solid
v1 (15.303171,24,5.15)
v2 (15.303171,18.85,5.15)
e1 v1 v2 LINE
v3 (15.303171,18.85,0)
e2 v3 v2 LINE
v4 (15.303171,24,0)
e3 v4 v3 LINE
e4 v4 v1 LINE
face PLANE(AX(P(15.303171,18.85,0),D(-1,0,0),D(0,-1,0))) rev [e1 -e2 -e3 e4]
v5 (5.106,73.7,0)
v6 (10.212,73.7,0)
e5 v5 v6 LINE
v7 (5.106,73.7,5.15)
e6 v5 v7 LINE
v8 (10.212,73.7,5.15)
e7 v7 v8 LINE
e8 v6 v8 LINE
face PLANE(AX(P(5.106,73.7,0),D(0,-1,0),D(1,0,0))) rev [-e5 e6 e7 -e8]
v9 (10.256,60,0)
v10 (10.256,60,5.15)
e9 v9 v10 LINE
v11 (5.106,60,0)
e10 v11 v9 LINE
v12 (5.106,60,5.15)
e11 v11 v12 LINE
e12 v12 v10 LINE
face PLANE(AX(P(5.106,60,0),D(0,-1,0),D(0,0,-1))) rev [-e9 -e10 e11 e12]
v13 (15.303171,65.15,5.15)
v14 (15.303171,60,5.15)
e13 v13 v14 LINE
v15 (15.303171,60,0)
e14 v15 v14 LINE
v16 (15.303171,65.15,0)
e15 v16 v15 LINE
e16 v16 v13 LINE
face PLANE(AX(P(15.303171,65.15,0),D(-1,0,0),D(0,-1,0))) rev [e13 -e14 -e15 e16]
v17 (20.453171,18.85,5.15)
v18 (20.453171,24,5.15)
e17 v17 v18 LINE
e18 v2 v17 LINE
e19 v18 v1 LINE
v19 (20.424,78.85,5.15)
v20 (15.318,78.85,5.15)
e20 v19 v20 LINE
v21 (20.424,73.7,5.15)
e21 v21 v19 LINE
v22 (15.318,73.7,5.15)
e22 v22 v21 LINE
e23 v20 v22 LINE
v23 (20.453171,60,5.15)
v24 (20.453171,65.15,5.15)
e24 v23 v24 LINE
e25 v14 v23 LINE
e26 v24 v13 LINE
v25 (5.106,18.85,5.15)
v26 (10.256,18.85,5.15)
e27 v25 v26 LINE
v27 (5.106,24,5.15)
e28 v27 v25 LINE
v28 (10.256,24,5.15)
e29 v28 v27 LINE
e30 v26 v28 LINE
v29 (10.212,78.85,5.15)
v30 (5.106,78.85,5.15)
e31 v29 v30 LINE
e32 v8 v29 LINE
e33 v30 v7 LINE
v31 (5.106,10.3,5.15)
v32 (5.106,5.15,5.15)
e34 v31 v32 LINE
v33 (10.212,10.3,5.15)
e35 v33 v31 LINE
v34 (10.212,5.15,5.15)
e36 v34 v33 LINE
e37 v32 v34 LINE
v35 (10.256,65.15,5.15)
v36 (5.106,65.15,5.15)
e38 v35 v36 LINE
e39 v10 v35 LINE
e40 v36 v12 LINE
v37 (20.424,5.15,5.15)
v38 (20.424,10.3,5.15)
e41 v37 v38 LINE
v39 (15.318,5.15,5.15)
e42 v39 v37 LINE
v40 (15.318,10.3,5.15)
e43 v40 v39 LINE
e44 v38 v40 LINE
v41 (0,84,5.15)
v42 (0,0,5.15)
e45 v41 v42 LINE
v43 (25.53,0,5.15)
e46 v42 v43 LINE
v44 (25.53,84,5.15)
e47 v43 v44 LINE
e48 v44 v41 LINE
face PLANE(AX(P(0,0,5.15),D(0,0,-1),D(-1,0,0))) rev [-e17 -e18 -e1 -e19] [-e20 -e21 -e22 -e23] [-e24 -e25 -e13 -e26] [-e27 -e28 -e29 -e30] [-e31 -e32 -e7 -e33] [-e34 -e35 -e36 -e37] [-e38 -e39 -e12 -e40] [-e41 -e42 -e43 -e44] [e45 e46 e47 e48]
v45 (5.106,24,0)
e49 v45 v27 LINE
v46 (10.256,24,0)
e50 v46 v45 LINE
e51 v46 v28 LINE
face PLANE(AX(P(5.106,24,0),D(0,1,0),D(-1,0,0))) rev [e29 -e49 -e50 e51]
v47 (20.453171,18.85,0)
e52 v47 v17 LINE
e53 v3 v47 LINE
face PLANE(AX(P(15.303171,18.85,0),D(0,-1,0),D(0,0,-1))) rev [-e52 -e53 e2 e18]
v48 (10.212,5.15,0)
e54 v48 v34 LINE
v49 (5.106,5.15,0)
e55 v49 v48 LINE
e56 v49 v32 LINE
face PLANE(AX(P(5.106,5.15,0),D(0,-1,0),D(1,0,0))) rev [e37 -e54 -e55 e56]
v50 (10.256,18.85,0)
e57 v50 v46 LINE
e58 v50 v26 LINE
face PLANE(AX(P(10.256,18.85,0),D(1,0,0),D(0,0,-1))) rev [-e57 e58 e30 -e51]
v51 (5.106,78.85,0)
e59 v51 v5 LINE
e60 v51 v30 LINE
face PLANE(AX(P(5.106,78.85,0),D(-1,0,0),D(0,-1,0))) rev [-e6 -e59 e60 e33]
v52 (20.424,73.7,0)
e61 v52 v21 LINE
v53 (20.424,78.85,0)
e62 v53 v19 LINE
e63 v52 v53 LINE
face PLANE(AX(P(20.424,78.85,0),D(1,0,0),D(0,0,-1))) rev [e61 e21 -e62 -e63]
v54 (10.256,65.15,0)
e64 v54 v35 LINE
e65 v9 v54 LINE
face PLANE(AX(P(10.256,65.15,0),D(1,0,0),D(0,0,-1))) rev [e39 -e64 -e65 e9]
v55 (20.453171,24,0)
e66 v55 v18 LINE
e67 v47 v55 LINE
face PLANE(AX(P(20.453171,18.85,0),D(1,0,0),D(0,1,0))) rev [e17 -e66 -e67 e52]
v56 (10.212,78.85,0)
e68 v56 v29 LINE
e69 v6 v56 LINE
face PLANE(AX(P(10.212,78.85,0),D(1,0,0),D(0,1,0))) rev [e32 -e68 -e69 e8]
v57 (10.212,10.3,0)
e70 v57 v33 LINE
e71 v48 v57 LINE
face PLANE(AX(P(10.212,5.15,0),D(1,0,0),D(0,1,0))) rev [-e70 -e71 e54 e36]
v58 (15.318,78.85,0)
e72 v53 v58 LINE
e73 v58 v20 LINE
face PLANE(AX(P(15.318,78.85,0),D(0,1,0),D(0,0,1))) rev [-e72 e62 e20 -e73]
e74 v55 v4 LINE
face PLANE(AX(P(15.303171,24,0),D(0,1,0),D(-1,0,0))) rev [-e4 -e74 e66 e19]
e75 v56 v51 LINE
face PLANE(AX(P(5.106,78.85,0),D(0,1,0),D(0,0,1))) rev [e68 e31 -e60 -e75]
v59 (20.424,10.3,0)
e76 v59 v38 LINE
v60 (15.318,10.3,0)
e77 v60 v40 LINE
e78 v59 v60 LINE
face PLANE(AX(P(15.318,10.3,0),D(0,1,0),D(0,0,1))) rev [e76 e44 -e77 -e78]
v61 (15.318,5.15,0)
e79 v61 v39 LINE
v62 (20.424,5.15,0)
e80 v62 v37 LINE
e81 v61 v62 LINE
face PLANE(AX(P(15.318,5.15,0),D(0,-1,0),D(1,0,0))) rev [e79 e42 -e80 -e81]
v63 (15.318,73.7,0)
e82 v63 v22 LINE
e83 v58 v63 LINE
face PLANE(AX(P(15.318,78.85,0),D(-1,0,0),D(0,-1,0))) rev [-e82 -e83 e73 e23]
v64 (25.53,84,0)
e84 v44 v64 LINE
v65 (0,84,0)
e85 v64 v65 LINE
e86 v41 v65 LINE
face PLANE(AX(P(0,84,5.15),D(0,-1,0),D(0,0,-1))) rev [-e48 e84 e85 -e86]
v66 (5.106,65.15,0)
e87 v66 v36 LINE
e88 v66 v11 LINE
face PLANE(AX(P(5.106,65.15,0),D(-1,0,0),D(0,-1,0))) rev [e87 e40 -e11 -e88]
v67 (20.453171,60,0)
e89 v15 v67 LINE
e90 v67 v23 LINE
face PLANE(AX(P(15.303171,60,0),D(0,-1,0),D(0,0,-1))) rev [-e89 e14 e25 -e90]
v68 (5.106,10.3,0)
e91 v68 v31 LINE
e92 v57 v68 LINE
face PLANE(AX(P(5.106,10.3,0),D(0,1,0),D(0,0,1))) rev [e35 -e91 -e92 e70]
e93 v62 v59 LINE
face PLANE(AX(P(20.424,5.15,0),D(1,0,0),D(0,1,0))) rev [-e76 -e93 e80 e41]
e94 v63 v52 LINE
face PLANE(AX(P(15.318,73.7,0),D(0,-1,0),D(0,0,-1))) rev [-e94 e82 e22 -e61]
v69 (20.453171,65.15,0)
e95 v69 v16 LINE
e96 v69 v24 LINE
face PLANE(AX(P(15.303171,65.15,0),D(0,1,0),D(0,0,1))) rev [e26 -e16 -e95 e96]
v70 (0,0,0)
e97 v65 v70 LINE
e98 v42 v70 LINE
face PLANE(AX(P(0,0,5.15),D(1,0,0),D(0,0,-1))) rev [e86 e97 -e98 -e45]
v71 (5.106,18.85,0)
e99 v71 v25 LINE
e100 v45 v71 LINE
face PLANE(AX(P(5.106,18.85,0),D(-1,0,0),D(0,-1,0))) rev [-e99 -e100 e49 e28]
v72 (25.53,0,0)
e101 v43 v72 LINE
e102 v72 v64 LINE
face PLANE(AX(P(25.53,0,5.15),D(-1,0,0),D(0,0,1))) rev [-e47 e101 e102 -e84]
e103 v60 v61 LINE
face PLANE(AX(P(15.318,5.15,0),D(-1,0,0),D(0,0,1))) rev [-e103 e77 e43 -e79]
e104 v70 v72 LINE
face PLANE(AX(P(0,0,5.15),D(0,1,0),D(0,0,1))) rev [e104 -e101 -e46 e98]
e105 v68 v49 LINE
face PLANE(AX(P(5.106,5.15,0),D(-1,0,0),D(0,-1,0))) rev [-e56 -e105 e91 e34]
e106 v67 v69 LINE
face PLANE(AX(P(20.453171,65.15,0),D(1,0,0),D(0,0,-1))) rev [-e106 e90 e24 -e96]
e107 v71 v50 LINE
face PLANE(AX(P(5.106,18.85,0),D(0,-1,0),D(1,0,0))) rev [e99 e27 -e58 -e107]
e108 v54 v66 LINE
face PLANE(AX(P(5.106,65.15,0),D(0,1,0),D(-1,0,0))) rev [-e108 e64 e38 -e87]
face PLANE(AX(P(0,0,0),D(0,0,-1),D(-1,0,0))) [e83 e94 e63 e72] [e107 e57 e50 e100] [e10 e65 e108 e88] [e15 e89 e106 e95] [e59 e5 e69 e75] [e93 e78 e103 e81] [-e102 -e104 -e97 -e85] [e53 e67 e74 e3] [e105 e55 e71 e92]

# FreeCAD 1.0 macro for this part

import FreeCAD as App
import Part
import Sketcher

V = App.Vector
Q = App.Units.Quantity

doc = App.newDocument("Part")
params = doc.addObject("Spreadsheet::Sheet", "Params")
for row, (alias, value) in enumerate([
    ("sketch1_height", "84 mm"),
    ("sketch1_width", "25.53 mm"),
    ("pad1_length", "5.15 mm"),
    ("sketch2_width", "5.15 mm"),
], start=1):
    params.set(f"A{row}", alias)
    params.set(f"B{row}", "=" + value)
    params.setAlias(f"B{row}", alias)

body = doc.addObject("PartDesign::Body", "Body")

# Sketch on XY plane
sketch1 = body.newObject("Sketcher::SketchObject", "Sketch")
sketch1.AttachmentSupport = (doc.getObject("XY_Plane"), [""])
sketch1.MapMode = "FlatFace"
sketch1.addGeometry(Part.LineSegment(V(0, 84, 0), V(0, 0, 0)), False)
sketch1.addGeometry(Part.LineSegment(V(0, 0, 0), V(26, 0, 0)), False)
sketch1.addGeometry(Part.LineSegment(V(26, 0, 0), V(26, 84, 0)), False)
sketch1.addGeometry(Part.LineSegment(V(26, 84, 0), V(0, 84, 0)), False)
sketch1.addConstraint(Sketcher.Constraint("Coincident", 0, 2, 1, 1))
sketch1.addConstraint(Sketcher.Constraint("Coincident", 1, 2, 2, 1))
sketch1.addConstraint(Sketcher.Constraint("Coincident", 2, 2, 3, 1))
sketch1.addConstraint(Sketcher.Constraint("Coincident", 3, 2, 0, 1))
sketch1.addConstraint(Sketcher.Constraint("Vertical", 0))
sketch1.addConstraint(Sketcher.Constraint("Horizontal", 1))
sketch1.addConstraint(Sketcher.Constraint("Vertical", 2))
sketch1.addConstraint(Sketcher.Constraint("Horizontal", 3))
sketch1.addConstraint(Sketcher.Constraint("Coincident", 0, 2, -1, 1))
sketch1.addConstraint(Sketcher.Constraint("DistanceY", 0, 2, 0, 1, Q("84 mm")))
sketch1.addConstraint(Sketcher.Constraint("DistanceX", 1, 1, 1, 2, Q("25.53 mm")))
sketch1.setExpression("Constraints[9]", "Params.sketch1_height")
sketch1.setExpression("Constraints[10]", "Params.sketch1_width")
pad1 = body.newObject("PartDesign::Pad", "Pad")
pad1.Profile = sketch1
pad1.setExpression("Length", "Params.pad1_length")

# Sketch on XY plane
sketch2 = body.newObject("Sketcher::SketchObject", "Sketch001")
sketch2.AttachmentSupport = (doc.getObject("XY_Plane"), [""])
sketch2.MapMode = "FlatFace"
sketch2.AttachmentOffset = App.Placement(V(0, 0, 5.15), App.Rotation())
sketch2.addGeometry(Part.LineSegment(V(5, 79, 0), V(5, 74, 0)), False)
sketch2.addGeometry(Part.LineSegment(V(5, 74, 0), V(10, 74, 0)), False)
sketch2.addGeometry(Part.LineSegment(V(10, 74, 0), V(10, 79, 0)), False)
sketch2.addGeometry(Part.LineSegment(V(10, 79, 0), V(5, 79, 0)), False)
sketch2.addGeometry(Part.LineSegment(V(15, 79, 0), V(15, 74, 0)), False)
sketch2.addGeometry(Part.LineSegment(V(15, 74, 0), V(20, 74, 0)), False)
sketch2.addGeometry(Part.LineSegment(V(20, 74, 0), V(20, 79, 0)), False)
sketch2.addGeometry(Part.LineSegment(V(20, 79, 0), V(15, 79, 0)), False)
sketch2.addGeometry(Part.LineSegment(V(15, 24, 0), V(15, 19, 0)), False)
sketch2.addGeometry(Part.LineSegment(V(15, 19, 0), V(20, 19, 0)), False)
sketch2.addGeometry(Part.LineSegment(V(20, 19, 0), V(20, 24, 0)), False)
sketch2.addGeometry(Part.LineSegment(V(20, 24, 0), V(15, 24, 0)), False)
sketch2.addGeometry(Part.LineSegment(V(5, 65, 0), V(5, 60, 0)), False)
sketch2.addGeometry(Part.LineSegment(V(5, 60, 0), V(10, 60, 0)), False)
sketch2.addGeometry(Part.LineSegment(V(10, 60, 0), V(10, 65, 0)), False)
sketch2.addGeometry(Part.LineSegment(V(10, 65, 0), V(5, 65, 0)), False)
sketch2.addGeometry(Part.LineSegment(V(15, 65, 0), V(15, 60, 0)), False)
sketch2.addGeometry(Part.LineSegment(V(15, 60, 0), V(20, 60, 0)), False)
sketch2.addGeometry(Part.LineSegment(V(20, 60, 0), V(20, 65, 0)), False)
sketch2.addGeometry(Part.LineSegment(V(20, 65, 0), V(15, 65, 0)), False)
sketch2.addGeometry(Part.LineSegment(V(5, 24, 0), V(5, 19, 0)), False)
sketch2.addGeometry(Part.LineSegment(V(5, 19, 0), V(10, 19, 0)), False)
sketch2.addGeometry(Part.LineSegment(V(10, 19, 0), V(10, 24, 0)), False)
sketch2.addGeometry(Part.LineSegment(V(10, 24, 0), V(5, 24, 0)), False)
sketch2.addGeometry(Part.LineSegment(V(15, 10, 0), V(15, 5, 0)), False)
sketch2.addGeometry(Part.LineSegment(V(15, 5, 0), V(20, 5, 0)), False)
sketch2.addGeometry(Part.LineSegment(V(20, 5, 0), V(20, 10, 0)), False)
sketch2.addGeometry(Part.LineSegment(V(20, 10, 0), V(15, 10, 0)), False)
sketch2.addGeometry(Part.LineSegment(V(5, 10, 0), V(5, 5, 0)), False)
sketch2.addGeometry(Part.LineSegment(V(5, 5, 0), V(10, 5, 0)), False)
sketch2.addGeometry(Part.LineSegment(V(10, 5, 0), V(10, 10, 0)), False)
sketch2.addGeometry(Part.LineSegment(V(10, 10, 0), V(5, 10, 0)), False)
sketch2.addConstraint(Sketcher.Constraint("Coincident", 0, 2, 1, 1))
sketch2.addConstraint(Sketcher.Constraint("Coincident", 1, 2, 2, 1))
sketch2.addConstraint(Sketcher.Constraint("Coincident", 2, 2, 3, 1))
sketch2.addConstraint(Sketcher.Constraint("Coincident", 3, 2, 0, 1))
sketch2.addConstraint(Sketcher.Constraint("Coincident", 4, 2, 5, 1))
sketch2.addConstraint(Sketcher.Constraint("Coincident", 5, 2, 6, 1))
sketch2.addConstraint(Sketcher.Constraint("Coincident", 6, 2, 7, 1))
sketch2.addConstraint(Sketcher.Constraint("Coincident", 7, 2, 4, 1))
sketch2.addConstraint(Sketcher.Constraint("Coincident", 8, 2, 9, 1))
sketch2.addConstraint(Sketcher.Constraint("Coincident", 9, 2, 10, 1))
sketch2.addConstraint(Sketcher.Constraint("Coincident", 10, 2, 11, 1))
sketch2.addConstraint(Sketcher.Constraint("Coincident", 11, 2, 8, 1))
sketch2.addConstraint(Sketcher.Constraint("Coincident", 12, 2, 13, 1))
sketch2.addConstraint(Sketcher.Constraint("Coincident", 13, 2, 14, 1))
sketch2.addConstraint(Sketcher.Constraint("Coincident", 14, 2, 15, 1))
sketch2.addConstraint(Sketcher.Constraint("Coincident", 15, 2, 12, 1))
sketch2.addConstraint(Sketcher.Constraint("Coincident", 16, 2, 17, 1))
sketch2.addConstraint(Sketcher.Constraint("Coincident", 17, 2, 18, 1))
sketch2.addConstraint(Sketcher.Constraint("Coincident", 18, 2, 19, 1))
sketch2.addConstraint(Sketcher.Constraint("Coincident", 19, 2, 16, 1))
sketch2.addConstraint(Sketcher.Constraint("Coincident", 20, 2, 21, 1))
sketch2.addConstraint(Sketcher.Constraint("Coincident", 21, 2, 22, 1))
sketch2.addConstraint(Sketcher.Constraint("Coincident", 22, 2, 23, 1))
sketch2.addConstraint(Sketcher.Constraint("Coincident", 23, 2, 20, 1))
sketch2.addConstraint(Sketcher.Constraint("Coincident", 24, 2, 25, 1))
sketch2.addConstraint(Sketcher.Constraint("Coincident", 25, 2, 26, 1))
sketch2.addConstraint(Sketcher.Constraint("Coincident", 26, 2, 27, 1))
sketch2.addConstraint(Sketcher.Constraint("Coincident", 27, 2, 24, 1))
sketch2.addConstraint(Sketcher.Constraint("Coincident", 28, 2, 29, 1))
sketch2.addConstraint(Sketcher.Constraint("Coincident", 29, 2, 30, 1))
sketch2.addConstraint(Sketcher.Constraint("Coincident", 30, 2, 31, 1))
sketch2.addConstraint(Sketcher.Constraint("Coincident", 31, 2, 28, 1))
sketch2.addConstraint(Sketcher.Constraint("Vertical", 0))
sketch2.addConstraint(Sketcher.Constraint("Horizontal", 1))
sketch2.addConstraint(Sketcher.Constraint("Vertical", 2))
sketch2.addConstraint(Sketcher.Constraint("Horizontal", 3))
sketch2.addConstraint(Sketcher.Constraint("Vertical", 4))
sketch2.addConstraint(Sketcher.Constraint("Horizontal", 5))
sketch2.addConstraint(Sketcher.Constraint("Vertical", 6))
sketch2.addConstraint(Sketcher.Constraint("Horizontal", 7))
sketch2.addConstraint(Sketcher.Constraint("Vertical", 8))
sketch2.addConstraint(Sketcher.Constraint("Horizontal", 9))
sketch2.addConstraint(Sketcher.Constraint("Vertical", 10))
sketch2.addConstraint(Sketcher.Constraint("Horizontal", 11))
sketch2.addConstraint(Sketcher.Constraint("Vertical", 12))
sketch2.addConstraint(Sketcher.Constraint("Horizontal", 13))
sketch2.addConstraint(Sketcher.Constraint("Vertical", 14))
sketch2.addConstraint(Sketcher.Constraint("Horizontal", 15))
sketch2.addConstraint(Sketcher.Constraint("Vertical", 16))
sketch2.addConstraint(Sketcher.Constraint("Horizontal", 17))
sketch2.addConstraint(Sketcher.Constraint("Vertical", 18))
sketch2.addConstraint(Sketcher.Constraint("Horizontal", 19))
sketch2.addConstraint(Sketcher.Constraint("Vertical", 20))
sketch2.addConstraint(Sketcher.Constraint("Horizontal", 21))
sketch2.addConstraint(Sketcher.Constraint("Vertical", 22))
sketch2.addConstraint(Sketcher.Constraint("Horizontal", 23))
sketch2.addConstraint(Sketcher.Constraint("Vertical", 24))
sketch2.addConstraint(Sketcher.Constraint("Horizontal", 25))
sketch2.addConstraint(Sketcher.Constraint("Vertical", 26))
sketch2.addConstraint(Sketcher.Constraint("Horizontal", 27))
sketch2.addConstraint(Sketcher.Constraint("Vertical", 28))
sketch2.addConstraint(Sketcher.Constraint("Horizontal", 29))
sketch2.addConstraint(Sketcher.Constraint("Vertical", 30))
sketch2.addConstraint(Sketcher.Constraint("Horizontal", 31))
sketch2.addConstraint(Sketcher.Constraint("Horizontal", 1, 2, 4, 2))
sketch2.addConstraint(Sketcher.Constraint("Horizontal", 3, 2, 6, 2))
sketch2.addConstraint(Sketcher.Constraint("Horizontal", 13, 2, 16, 2))
sketch2.addConstraint(Sketcher.Constraint("Horizontal", 15, 2, 18, 2))
sketch2.addConstraint(Sketcher.Constraint("Horizontal", 9, 2, 20, 2))
sketch2.addConstraint(Sketcher.Constraint("Horizontal", 11, 2, 22, 2))
sketch2.addConstraint(Sketcher.Constraint("Horizontal", 25, 2, 28, 2))
sketch2.addConstraint(Sketcher.Constraint("Horizontal", 27, 2, 30, 2))
sketch2.addConstraint(Sketcher.Constraint("Vertical", 3, 2, 12, 2))
sketch2.addConstraint(Sketcher.Constraint("Vertical", 11, 2, 16, 2))
sketch2.addConstraint(Sketcher.Constraint("Vertical", 10, 2, 17, 2))
sketch2.addConstraint(Sketcher.Constraint("Vertical", 15, 2, 20, 2))
sketch2.addConstraint(Sketcher.Constraint("Vertical", 14, 2, 21, 2))
sketch2.addConstraint(Sketcher.Constraint("Vertical", 7, 2, 24, 2))
sketch2.addConstraint(Sketcher.Constraint("Vertical", 6, 2, 25, 2))
sketch2.addConstraint(Sketcher.Constraint("Vertical", 23, 2, 28, 2))
sketch2.addConstraint(Sketcher.Constraint("Vertical", 2, 2, 29, 2))
sketch2.addConstraint(Sketcher.Constraint("Equal", 3, 5))
sketch2.addConstraint(Sketcher.Constraint("Equal", 11, 13))
sketch2.addConstraint(Sketcher.Constraint("Equal", 23, 0))
sketch2.addConstraint(Sketcher.Constraint("Equal", 6, 8))
sketch2.addConstraint(Sketcher.Constraint("Equal", 10, 12))
sketch2.addConstraint(Sketcher.Constraint("Equal", 22, 24))
sketch2.addConstraint(Sketcher.Constraint("DistanceY", -1, 1, 10, 2, Q("24 mm")))
sketch2.addConstraint(Sketcher.Constraint("DistanceY", -1, 1, 12, 2, Q("60 mm")))
sketch2.addConstraint(Sketcher.Constraint("DistanceY", 8, 2, 7, 2, Q("60 mm")))
sketch2.addConstraint(Sketcher.Constraint("DistanceX", 9, 1, 9, 2, Q("5.15 mm")))
sketch2.addConstraint(Sketcher.Constraint("DistanceY", -1, 1, 26, 2, Q("10.3 mm")))
sketch2.addConstraint(Sketcher.Constraint("DistanceX", 1, 1, 1, 2, Q("5.106 mm")))
sketch2.addConstraint(Sketcher.Constraint("DistanceX", -1, 1, 0, 2, Q("5.106 mm")))
sketch2.addConstraint(Sketcher.Constraint("DistanceX", -1, 1, 4, 2, Q("15.318 mm")))
sketch2.addConstraint(Sketcher.Constraint("DistanceX", -1, 1, 8, 2, Q("15.303171 mm")))
sketch2.setExpression("Constraints[90]", "Params.sketch2_width")
pocket1 = body.newObject("PartDesign::Pocket", "Pocket")
pocket1.Profile = sketch2
pocket1.Type = "ThroughAll"

doc.recompute()
